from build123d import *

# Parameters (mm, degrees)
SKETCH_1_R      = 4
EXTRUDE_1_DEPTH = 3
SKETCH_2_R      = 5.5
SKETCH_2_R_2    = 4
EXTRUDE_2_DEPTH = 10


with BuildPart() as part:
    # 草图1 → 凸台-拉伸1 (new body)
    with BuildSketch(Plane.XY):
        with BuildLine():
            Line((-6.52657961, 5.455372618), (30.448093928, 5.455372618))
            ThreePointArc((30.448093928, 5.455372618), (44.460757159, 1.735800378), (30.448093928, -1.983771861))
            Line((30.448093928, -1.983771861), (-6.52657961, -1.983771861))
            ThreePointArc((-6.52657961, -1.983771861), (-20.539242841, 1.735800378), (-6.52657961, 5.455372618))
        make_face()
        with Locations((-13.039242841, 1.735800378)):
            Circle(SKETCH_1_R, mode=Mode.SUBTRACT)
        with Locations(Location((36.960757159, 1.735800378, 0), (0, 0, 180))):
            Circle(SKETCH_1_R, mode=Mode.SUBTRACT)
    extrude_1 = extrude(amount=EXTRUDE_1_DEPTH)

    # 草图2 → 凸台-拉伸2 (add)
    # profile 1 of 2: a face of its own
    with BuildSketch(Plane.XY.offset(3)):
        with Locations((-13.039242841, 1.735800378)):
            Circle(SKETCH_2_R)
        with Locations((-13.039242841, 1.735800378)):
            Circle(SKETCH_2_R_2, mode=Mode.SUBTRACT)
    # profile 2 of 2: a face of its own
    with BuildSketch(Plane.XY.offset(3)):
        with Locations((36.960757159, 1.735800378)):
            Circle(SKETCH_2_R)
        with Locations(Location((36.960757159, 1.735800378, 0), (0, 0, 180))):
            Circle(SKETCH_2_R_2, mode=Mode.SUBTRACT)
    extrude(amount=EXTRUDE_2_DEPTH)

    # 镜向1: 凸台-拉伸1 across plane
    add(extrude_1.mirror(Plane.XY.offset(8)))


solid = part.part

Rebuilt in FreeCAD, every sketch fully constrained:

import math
import FreeCAD as App
import Part
import Sketcher
Q = App.Units.Quantity

doc = App.newDocument("Part")
params = doc.addObject("Spreadsheet::Sheet", "Params")
for row, (alias, value) in enumerate([
    ("sketch1_diameter", "8 mm"),
    ("sketch1_radius", "7.5 mm"),
    ("pad1_length", "3 mm"),
    ("sketch2_diameter", "11 mm"),
    ("sketch2_diameter2", "8 mm"),
    ("pad2_length", "10 mm"),
], start=1):
    params.set(f"A{row}", alias)
    params.set(f"B{row}", "=" + value)
    params.setAlias(f"B{row}", alias)

body = doc.addObject("PartDesign::Body", "Body")

sketch1 = body.newObject("Sketcher::SketchObject", "Sketch")
sketch1.AttachmentSupport = (doc.getObject("XY_Plane"), [""])
sketch1.MapMode = "FlatFace"
sketch1.addGeometry(Part.LineSegment(App.Vector(30.448094, 5.455373, 0), App.Vector(-6.52658, 5.455373, 0)), False)
sketch1.addGeometry(Part.ArcOfCircle(Part.Circle(App.Vector(-13.039243, 1.7358, 0), App.Vector(0, 0, 1), 7.5), math.radians(29.73195), math.radians(330.26805)), False)
sketch1.addGeometry(Part.LineSegment(App.Vector(-6.52658, -1.983772, 0), App.Vector(30.448094, -1.983772, 0)), False)
sketch1.addGeometry(Part.ArcOfCircle(Part.Circle(App.Vector(36.960757, 1.7358, 0), App.Vector(0, 0, 1), 7.5), math.radians(-150.26805), math.radians(150.26805)), False)
sketch1.addGeometry(Part.Circle(App.Vector(36.960757, 1.7358, 0), App.Vector(0, 0, 1), 4), False)
sketch1.addGeometry(Part.Circle(App.Vector(-13.039243, 1.7358, 0), App.Vector(0, 0, 1), 4), False)
sketch1.addConstraint(Sketcher.Constraint("Coincident", 0, 2, 1, 1))
sketch1.addConstraint(Sketcher.Constraint("Coincident", 1, 2, 2, 1))
sketch1.addConstraint(Sketcher.Constraint("Coincident", 2, 2, 3, 1))
sketch1.addConstraint(Sketcher.Constraint("Coincident", 3, 2, 0, 1))
sketch1.addConstraint(Sketcher.Constraint("Horizontal", 0))
sketch1.addConstraint(Sketcher.Constraint("Horizontal", 2))
sketch1.addConstraint(Sketcher.Constraint("Coincident", 4, 3, 3, 3))
sketch1.addConstraint(Sketcher.Constraint("Coincident", 5, 3, 1, 3))
sketch1.addConstraint(Sketcher.Constraint("Equal", 1, 3))
sketch1.addConstraint(Sketcher.Constraint("Equal", 4, 5))
sketch1.addConstraint(Sketcher.Constraint("Horizontal", 1, 3, 3, 3))
sketch1.addConstraint(Sketcher.Constraint("Vertical", 0, 2, 1, 2))
sketch1.addConstraint(Sketcher.Constraint("Diameter", 4, Q("8 mm")))
sketch1.addConstraint(Sketcher.Constraint("Radius", 1, Q("7.5 mm")))
sketch1.addConstraint(Sketcher.Constraint("DistanceX", 1, 3, 3, 3, Q("50 mm")))
sketch1.addConstraint(Sketcher.Constraint("DistanceY", -1, 1, 1, 3, Q("1.7358 mm")))
sketch1.addConstraint(Sketcher.Constraint("DistanceX", 0, 2, 0, 1, Q("36.974674 mm")))
sketch1.addConstraint(Sketcher.Constraint("DistanceX", 0, 2, -1, 1, Q("6.52658 mm")))
sketch1.setExpression("Constraints[12]", "Params.sketch1_diameter")
sketch1.setExpression("Constraints[13]", "Params.sketch1_radius")
pad1 = body.newObject("PartDesign::Pad", "Pad")
pad1.Profile = sketch1
pad1.setExpression("Length", "Params.pad1_length")

sketch2 = body.newObject("Sketcher::SketchObject", "Sketch001")
sketch2.AttachmentSupport = (doc.getObject("XY_Plane"), [""])
sketch2.MapMode = "FlatFace"
sketch2.AttachmentOffset = App.Placement(App.Vector(0, 0, 3), App.Rotation())
sketch2.addGeometry(Part.Circle(App.Vector(-13.039243, 1.7358, 0), App.Vector(0, 0, 1), 5.5), False)
sketch2.addGeometry(Part.Circle(App.Vector(-13.039243, 1.7358, 0), App.Vector(0, 0, 1), 4), False)
sketch2.addGeometry(Part.Circle(App.Vector(36.960757, 1.7358, 0), App.Vector(0, 0, 1), 5.5), False)
sketch2.addGeometry(Part.Circle(App.Vector(36.960757, 1.7358, 0), App.Vector(0, 0, 1), 4), False)
sketch2.addConstraint(Sketcher.Constraint("Coincident", 1, 3, 0, 3))
sketch2.addConstraint(Sketcher.Constraint("Coincident", 3, 3, 2, 3))
sketch2.addConstraint(Sketcher.Constraint("Equal", 0, 2))
sketch2.addConstraint(Sketcher.Constraint("Equal", 1, 3))
sketch2.addConstraint(Sketcher.Constraint("Horizontal", 1, 3, 2, 3))
sketch2.addConstraint(Sketcher.Constraint("Diameter", 0, Q("11 mm")))
sketch2.addConstraint(Sketcher.Constraint("Diameter", 1, Q("8 mm")))
sketch2.addConstraint(Sketcher.Constraint("DistanceX", 0, 3, 2, 3, Q("50 mm")))
sketch2.addConstraint(Sketcher.Constraint("DistanceY", -1, 1, 0, 3, Q("1.7358 mm")))
sketch2.addConstraint(Sketcher.Constraint("DistanceX", 0, 3, -1, 1, Q("13.039243 mm")))
sketch2.setExpression("Constraints[5]", "Params.sketch2_diameter")
sketch2.setExpression("Constraints[6]", "Params.sketch2_diameter2")
pad2 = body.newObject("PartDesign::Pad", "Pad001")
pad2.Profile = sketch2
pad2.setExpression("Length", "Params.pad2_length")
doc.recompute()

datumplane = body.newObject("PartDesign::Plane", "DatumPlane")
datumplane.AttachmentSupport = (doc.getObject("XY_Plane"), [""])
datumplane.MapMode = "FlatFace"
datumplane.AttachmentOffset = App.Placement(App.Vector(0, 0, 8), App.Rotation())
mirrored = body.newObject("PartDesign::Mirrored", "Mirrored")
mirrored.Originals = [pad1]
mirrored.MirrorPlane = (datumplane, [""])
body.Tip = mirrored

doc.recompute()
